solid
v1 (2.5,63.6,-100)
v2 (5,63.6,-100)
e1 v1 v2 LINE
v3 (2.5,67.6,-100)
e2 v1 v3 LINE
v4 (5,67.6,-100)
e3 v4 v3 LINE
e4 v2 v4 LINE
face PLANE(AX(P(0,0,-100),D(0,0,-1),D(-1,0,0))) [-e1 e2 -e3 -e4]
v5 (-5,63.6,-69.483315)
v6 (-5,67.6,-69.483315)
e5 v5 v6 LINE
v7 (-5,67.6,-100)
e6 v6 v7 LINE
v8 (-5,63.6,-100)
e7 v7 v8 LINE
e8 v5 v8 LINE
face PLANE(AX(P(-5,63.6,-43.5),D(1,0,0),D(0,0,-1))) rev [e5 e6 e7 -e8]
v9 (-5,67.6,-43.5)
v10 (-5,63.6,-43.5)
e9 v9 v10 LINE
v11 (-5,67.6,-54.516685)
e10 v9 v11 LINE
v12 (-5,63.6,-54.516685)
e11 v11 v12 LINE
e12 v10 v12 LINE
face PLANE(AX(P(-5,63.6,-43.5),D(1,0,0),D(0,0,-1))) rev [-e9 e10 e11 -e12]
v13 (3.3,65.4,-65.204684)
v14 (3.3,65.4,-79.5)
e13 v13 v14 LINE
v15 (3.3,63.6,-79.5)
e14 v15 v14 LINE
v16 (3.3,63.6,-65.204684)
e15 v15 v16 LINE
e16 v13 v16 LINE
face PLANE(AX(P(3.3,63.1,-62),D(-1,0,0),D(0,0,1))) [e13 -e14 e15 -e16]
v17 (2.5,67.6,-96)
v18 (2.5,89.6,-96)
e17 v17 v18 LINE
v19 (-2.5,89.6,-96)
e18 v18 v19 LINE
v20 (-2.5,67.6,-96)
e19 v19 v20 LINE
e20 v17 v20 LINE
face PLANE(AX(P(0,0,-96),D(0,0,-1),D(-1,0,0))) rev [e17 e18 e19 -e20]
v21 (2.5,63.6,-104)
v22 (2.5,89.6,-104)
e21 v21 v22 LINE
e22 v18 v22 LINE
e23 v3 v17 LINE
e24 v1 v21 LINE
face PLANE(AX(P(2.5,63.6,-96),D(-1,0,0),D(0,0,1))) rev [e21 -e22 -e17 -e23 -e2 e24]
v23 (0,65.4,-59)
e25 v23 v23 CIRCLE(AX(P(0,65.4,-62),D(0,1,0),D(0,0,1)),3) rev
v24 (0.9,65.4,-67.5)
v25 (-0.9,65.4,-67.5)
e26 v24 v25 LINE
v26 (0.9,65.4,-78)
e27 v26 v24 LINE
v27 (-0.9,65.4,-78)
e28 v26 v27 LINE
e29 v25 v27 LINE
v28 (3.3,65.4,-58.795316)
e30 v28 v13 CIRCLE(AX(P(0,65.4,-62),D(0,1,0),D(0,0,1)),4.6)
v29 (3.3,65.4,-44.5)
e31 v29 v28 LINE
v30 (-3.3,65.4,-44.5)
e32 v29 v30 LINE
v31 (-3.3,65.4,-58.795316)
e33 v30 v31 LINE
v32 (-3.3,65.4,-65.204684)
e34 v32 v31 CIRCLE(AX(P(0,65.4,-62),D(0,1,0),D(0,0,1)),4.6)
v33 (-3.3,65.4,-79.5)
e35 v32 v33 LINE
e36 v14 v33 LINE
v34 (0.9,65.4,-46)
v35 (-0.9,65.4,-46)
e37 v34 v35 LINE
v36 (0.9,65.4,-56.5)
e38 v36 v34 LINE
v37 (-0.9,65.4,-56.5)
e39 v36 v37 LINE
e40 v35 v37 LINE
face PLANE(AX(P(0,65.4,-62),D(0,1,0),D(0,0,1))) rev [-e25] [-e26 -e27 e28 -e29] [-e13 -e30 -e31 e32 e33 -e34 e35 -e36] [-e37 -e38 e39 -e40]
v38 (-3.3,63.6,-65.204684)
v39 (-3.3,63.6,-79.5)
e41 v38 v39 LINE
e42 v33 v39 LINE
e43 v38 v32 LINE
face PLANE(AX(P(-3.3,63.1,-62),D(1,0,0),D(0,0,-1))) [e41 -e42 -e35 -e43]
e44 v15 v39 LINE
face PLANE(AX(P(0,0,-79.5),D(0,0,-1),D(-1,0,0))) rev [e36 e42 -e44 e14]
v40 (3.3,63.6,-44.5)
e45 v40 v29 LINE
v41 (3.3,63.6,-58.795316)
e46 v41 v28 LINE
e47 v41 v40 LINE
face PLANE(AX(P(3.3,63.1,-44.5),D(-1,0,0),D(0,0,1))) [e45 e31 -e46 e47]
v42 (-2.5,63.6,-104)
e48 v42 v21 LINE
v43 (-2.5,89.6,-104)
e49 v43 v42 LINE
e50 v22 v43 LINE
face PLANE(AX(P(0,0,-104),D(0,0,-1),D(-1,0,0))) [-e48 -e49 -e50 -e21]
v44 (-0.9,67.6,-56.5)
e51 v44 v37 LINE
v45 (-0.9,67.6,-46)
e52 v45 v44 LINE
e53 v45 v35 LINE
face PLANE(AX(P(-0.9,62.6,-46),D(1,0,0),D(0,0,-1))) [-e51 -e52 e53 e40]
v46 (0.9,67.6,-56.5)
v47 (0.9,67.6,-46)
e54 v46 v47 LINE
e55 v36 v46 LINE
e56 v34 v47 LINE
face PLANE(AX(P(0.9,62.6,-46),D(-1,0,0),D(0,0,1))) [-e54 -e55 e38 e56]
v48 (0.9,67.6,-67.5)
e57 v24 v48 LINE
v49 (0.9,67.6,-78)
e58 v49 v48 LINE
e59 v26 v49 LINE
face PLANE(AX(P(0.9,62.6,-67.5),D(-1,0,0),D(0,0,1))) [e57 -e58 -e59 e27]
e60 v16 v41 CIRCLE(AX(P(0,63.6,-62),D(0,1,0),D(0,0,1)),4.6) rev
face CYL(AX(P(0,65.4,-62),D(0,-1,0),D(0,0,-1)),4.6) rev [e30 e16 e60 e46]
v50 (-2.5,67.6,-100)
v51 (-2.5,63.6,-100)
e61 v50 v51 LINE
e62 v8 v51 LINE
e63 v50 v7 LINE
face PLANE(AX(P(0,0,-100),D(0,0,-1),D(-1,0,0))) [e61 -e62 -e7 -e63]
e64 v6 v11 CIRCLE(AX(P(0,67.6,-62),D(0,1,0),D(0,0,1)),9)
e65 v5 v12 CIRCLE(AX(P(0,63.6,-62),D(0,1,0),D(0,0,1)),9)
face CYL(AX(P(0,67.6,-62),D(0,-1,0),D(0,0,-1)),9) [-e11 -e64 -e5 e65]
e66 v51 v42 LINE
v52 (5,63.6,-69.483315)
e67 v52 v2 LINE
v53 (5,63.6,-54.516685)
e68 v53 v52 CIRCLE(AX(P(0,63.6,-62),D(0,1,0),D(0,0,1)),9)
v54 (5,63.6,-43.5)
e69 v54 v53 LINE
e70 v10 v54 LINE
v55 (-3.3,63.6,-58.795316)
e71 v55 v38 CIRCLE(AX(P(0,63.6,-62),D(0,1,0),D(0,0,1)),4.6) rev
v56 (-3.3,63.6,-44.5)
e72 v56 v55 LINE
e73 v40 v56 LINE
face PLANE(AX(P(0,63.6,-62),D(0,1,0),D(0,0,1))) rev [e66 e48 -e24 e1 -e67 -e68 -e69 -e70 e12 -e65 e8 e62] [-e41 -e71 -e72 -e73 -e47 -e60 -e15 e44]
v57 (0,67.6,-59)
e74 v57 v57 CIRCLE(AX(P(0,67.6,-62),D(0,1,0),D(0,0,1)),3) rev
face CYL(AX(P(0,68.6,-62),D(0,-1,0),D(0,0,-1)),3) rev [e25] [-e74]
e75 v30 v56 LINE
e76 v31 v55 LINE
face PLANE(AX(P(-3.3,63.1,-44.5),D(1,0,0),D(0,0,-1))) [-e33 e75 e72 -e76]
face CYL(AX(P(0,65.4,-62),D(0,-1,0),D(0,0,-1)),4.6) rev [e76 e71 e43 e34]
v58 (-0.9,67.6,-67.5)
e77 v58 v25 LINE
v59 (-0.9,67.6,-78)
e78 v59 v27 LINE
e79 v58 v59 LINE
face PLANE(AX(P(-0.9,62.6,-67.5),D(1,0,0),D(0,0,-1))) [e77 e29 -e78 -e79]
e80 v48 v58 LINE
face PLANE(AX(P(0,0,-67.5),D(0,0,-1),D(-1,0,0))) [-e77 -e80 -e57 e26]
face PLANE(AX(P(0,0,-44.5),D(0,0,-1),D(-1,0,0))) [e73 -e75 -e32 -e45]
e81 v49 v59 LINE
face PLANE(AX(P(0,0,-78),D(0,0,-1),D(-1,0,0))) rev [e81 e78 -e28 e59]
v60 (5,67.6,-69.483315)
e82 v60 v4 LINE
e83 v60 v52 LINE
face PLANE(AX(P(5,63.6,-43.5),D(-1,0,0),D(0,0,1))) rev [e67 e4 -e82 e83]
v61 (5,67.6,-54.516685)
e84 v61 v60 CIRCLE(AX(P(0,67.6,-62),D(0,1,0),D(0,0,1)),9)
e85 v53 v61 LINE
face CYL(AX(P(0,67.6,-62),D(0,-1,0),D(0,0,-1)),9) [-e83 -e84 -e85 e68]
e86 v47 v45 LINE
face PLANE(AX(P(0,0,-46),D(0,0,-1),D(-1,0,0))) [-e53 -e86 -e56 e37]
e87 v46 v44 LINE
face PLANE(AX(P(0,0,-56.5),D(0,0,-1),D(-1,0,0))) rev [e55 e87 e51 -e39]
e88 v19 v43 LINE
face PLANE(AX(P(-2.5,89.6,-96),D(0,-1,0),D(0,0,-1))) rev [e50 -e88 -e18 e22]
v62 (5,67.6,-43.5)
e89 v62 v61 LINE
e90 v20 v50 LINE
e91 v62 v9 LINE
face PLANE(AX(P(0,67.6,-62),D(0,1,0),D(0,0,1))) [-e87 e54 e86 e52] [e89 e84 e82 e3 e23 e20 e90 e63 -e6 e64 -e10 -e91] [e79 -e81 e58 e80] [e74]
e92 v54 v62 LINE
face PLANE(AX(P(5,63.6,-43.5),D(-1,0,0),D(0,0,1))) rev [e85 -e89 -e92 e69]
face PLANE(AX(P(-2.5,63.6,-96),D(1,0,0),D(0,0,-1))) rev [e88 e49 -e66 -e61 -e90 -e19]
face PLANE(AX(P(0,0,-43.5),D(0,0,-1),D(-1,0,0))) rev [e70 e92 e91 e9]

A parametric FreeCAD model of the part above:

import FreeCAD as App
import Part
import Sketcher

V = App.Vector

doc = App.newDocument("Part")
body = doc.addObject("PartDesign::Body", "Body")

sketch1 = doc.addObject("Sketcher::SketchObject", "Sketch")
body.addObject(sketch1)
sketch1.AttachmentSupport = (doc.XZ_Plane, [""])
sketch1.MapMode = "FlatFace"
sketch1.AttachmentOffset = App.Placement(V(0, 0, -63.6), App.Rotation())
sketch1.addGeometry(Part.Circle(V(0, -62, 0), V(0, 0, 1), 9), False)
sketch1.addConstraint([
    Sketcher.Constraint("PointOnObject", 0, 3, -2),
    Sketcher.Constraint("Diameter", 0, 18.0),
    Sketcher.Constraint("DistanceY", 0, 3, -1, 1, 62.0),
])
pad1 = doc.addObject("PartDesign::Pad", "Pad")
body.addObject(pad1)
pad1.Profile = sketch1
pad1.Length = 4
pad1.Reversed = True

sketch2 = doc.addObject("Sketcher::SketchObject", "Sketch001")
body.addObject(sketch2)
sketch2.AttachmentSupport = (doc.XY_Plane, [""])
sketch2.MapMode = "FlatFace"
sketch2.AttachmentOffset = App.Placement(V(0, 0, -100), App.Rotation())
sketch2.addGeometry([
    Part.LineSegment(V(-5, 67.6, 0), V(-5, 63.6, 0)),
    Part.LineSegment(V(-5, 63.6, 0), V(5, 63.6, 0)),
    Part.LineSegment(V(5, 63.6, 0), V(5, 67.6, 0)),
    Part.LineSegment(V(5, 67.6, 0), V(-5, 67.6, 0)),
], False)
sketch2.addConstraint([
    Sketcher.Constraint("Coincident", 0, 2, 1, 1),
    Sketcher.Constraint("Coincident", 1, 2, 2, 1),
    Sketcher.Constraint("Coincident", 2, 2, 3, 1),
    Sketcher.Constraint("Coincident", 3, 2, 0, 1),
    Sketcher.Constraint("Vertical", 0),
    Sketcher.Constraint("Horizontal", 1),
    Sketcher.Constraint("Vertical", 2),
    Sketcher.Constraint("Horizontal", 3),
    Sketcher.Constraint("DistanceX", 1, 1, 1, 2, 10.0),
    Sketcher.Constraint("DistanceY", 0, 2, 0, 1, 4.0),
    Sketcher.Constraint("DistanceX", 0, 2, -1, 1, 5.0),
    Sketcher.Constraint("DistanceY", -1, 1, 0, 2, 63.6),
])
pad2 = doc.addObject("PartDesign::Pad", "Pad001")
body.addObject(pad2)
pad2.Profile = sketch2
pad2.Length = 56.5

sketch3 = doc.addObject("Sketcher::SketchObject", "Sketch002")
body.addObject(sketch3)
sketch3.AttachmentSupport = (doc.XY_Plane, [""])
sketch3.MapMode = "FlatFace"
sketch3.AttachmentOffset = App.Placement(V(0, 0, -104), App.Rotation())
sketch3.addGeometry([
    Part.LineSegment(V(-2, 90, 0), V(-2, 64, 0)),
    Part.LineSegment(V(-2, 64, 0), V(2, 64, 0)),
    Part.LineSegment(V(2, 64, 0), V(2, 90, 0)),
    Part.LineSegment(V(2, 90, 0), V(-2, 90, 0)),
], False)
sketch3.addConstraint([
    Sketcher.Constraint("Coincident", 0, 2, 1, 1),
    Sketcher.Constraint("Coincident", 1, 2, 2, 1),
    Sketcher.Constraint("Coincident", 2, 2, 3, 1),
    Sketcher.Constraint("Coincident", 3, 2, 0, 1),
    Sketcher.Constraint("Vertical", 0),
    Sketcher.Constraint("Horizontal", 1),
    Sketcher.Constraint("Vertical", 2),
    Sketcher.Constraint("Horizontal", 3),
    Sketcher.Constraint("DistanceX", 1, 1, 1, 2, 5.0),
    Sketcher.Constraint("DistanceY", 0, 2, 0, 1, 26.0),
    Sketcher.Constraint("DistanceX", 0, 2, -1, 1, 2.5),
    Sketcher.Constraint("DistanceY", -1, 1, 0, 2, 63.6),
])
pad3 = doc.addObject("PartDesign::Pad", "Pad002")
body.addObject(pad3)
pad3.Profile = sketch3
pad3.Length = 8
body2 = doc.addObject("PartDesign::Body", "Body001")

sketch4 = doc.addObject("Sketcher::SketchObject", "Sketch003")
body2.addObject(sketch4)
sketch4.AttachmentSupport = (doc.getObject("XZ_Plane001"), [""])
sketch4.MapMode = "FlatFace"
sketch4.AttachmentOffset = App.Placement(V(0, 0, -63.1), App.Rotation())
sketch4.addGeometry(Part.Circle(V(0, -62, 0), V(0, 0, 1), 4.6), False)
sketch4.addConstraint([
    Sketcher.Constraint("PointOnObject", 0, 3, -2),
    Sketcher.Constraint("Diameter", 0, 9.2),
    Sketcher.Constraint("DistanceY", 0, 3, -1, 1, 62.0),
])
pad4 = doc.addObject("PartDesign::Pad", "Pad003")
body2.addObject(pad4)
pad4.Profile = sketch4
pad4.Length = 2.3
pad4.Reversed = True
doc.recompute()

boolean = doc.addObject("PartDesign::Boolean", "Boolean")
body.addObject(boolean)
boolean.Type = "Cut"
boolean.addObjects([body2])
body3 = doc.addObject("PartDesign::Body", "Body002")

sketch5 = doc.addObject("Sketcher::SketchObject", "Sketch004")
body3.addObject(sketch5)
sketch5.AttachmentSupport = (doc.getObject("XY_Plane002"), [""])
sketch5.MapMode = "FlatFace"
sketch5.AttachmentOffset = App.Placement(V(0, 0, -62), App.Rotation())
sketch5.addGeometry([
    Part.LineSegment(V(-3.3, 65.4, 0), V(-3.3, 63.1, 0)),
    Part.LineSegment(V(-3.3, 63.1, 0), V(3.3, 63.1, 0)),
    Part.LineSegment(V(3.3, 63.1, 0), V(3.3, 65.4, 0)),
    Part.LineSegment(V(3.3, 65.4, 0), V(-3.3, 65.4, 0)),
], False)
sketch5.addConstraint([
    Sketcher.Constraint("Coincident", 0, 2, 1, 1),
    Sketcher.Constraint("Coincident", 1, 2, 2, 1),
    Sketcher.Constraint("Coincident", 2, 2, 3, 1),
    Sketcher.Constraint("Coincident", 3, 2, 0, 1),
    Sketcher.Constraint("Vertical", 0),
    Sketcher.Constraint("Horizontal", 1),
    Sketcher.Constraint("Vertical", 2),
    Sketcher.Constraint("Horizontal", 3),
    Sketcher.Constraint("DistanceX", 1, 1, 1, 2, 6.6),
    Sketcher.Constraint("DistanceY", 0, 2, 0, 1, 2.3),
    Sketcher.Constraint("DistanceX", 0, 2, -1, 1, 3.3),
    Sketcher.Constraint("DistanceY", -1, 1, 0, 2, 63.1),
])
pad5 = doc.addObject("PartDesign::Pad", "Pad004")
body3.addObject(pad5)
pad5.Profile = sketch5
pad5.Length = 17.5
doc.recompute()

boolean2 = doc.addObject("PartDesign::Boolean", "Boolean001")
body.addObject(boolean2)
boolean2.Type = "Cut"
boolean2.addObjects([body3])
body4 = doc.addObject("PartDesign::Body", "Body003")

sketch6 = doc.addObject("Sketcher::SketchObject", "Sketch005")
body4.addObject(sketch6)
sketch6.AttachmentSupport = (doc.getObject("XY_Plane003"), [""])
sketch6.MapMode = "FlatFace"
sketch6.AttachmentOffset = App.Placement(V(0, 0, -56.5), App.Rotation())
sketch6.addGeometry([
    Part.LineSegment(V(-0.9, 68.6, 0), V(-0.9, 62.6, 0)),
    Part.LineSegment(V(-0.9, 62.6, 0), V(0.9, 62.6, 0)),
    Part.LineSegment(V(0.9, 62.6, 0), V(0.9, 68.6, 0)),
    Part.LineSegment(V(0.9, 68.6, 0), V(-0.9, 68.6, 0)),
], False)
sketch6.addConstraint([
    Sketcher.Constraint("Coincident", 0, 2, 1, 1),
    Sketcher.Constraint("Coincident", 1, 2, 2, 1),
    Sketcher.Constraint("Coincident", 2, 2, 3, 1),
    Sketcher.Constraint("Coincident", 3, 2, 0, 1),
    Sketcher.Constraint("Vertical", 0),
    Sketcher.Constraint("Horizontal", 1),
    Sketcher.Constraint("Vertical", 2),
    Sketcher.Constraint("Horizontal", 3),
    Sketcher.Constraint("DistanceY", 0, 2, 0, 1, 6.0),
    Sketcher.Constraint("DistanceX", 1, 1, 1, 2, 1.8),
    Sketcher.Constraint("DistanceX", 0, 2, -1, 1, 0.9),
    Sketcher.Constraint("DistanceY", -1, 1, 0, 2, 62.6),
])
pad6 = doc.addObject("PartDesign::Pad", "Pad005")
body4.addObject(pad6)
pad6.Profile = sketch6
pad6.Length = 10.5
doc.recompute()

boolean3 = doc.addObject("PartDesign::Boolean", "Boolean002")
body.addObject(boolean3)
boolean3.Type = "Cut"
boolean3.addObjects([body4])
body5 = doc.addObject("PartDesign::Body", "Body004")

sketch7 = doc.addObject("Sketcher::SketchObject", "Sketch006")
body5.addObject(sketch7)
sketch7.AttachmentSupport = (doc.getObject("XY_Plane004"), [""])
sketch7.MapMode = "FlatFace"
sketch7.AttachmentOffset = App.Placement(V(0, 0, -79.5), App.Rotation())
sketch7.addGeometry([
    Part.LineSegment(V(-3.3, 65.4, 0), V(-3.3, 63.1, 0)),
    Part.LineSegment(V(-3.3, 63.1, 0), V(3.3, 63.1, 0)),
    Part.LineSegment(V(3.3, 63.1, 0), V(3.3, 65.4, 0)),
    Part.LineSegment(V(3.3, 65.4, 0), V(-3.3, 65.4, 0)),
], False)
sketch7.addConstraint([
    Sketcher.Constraint("Coincident", 0, 2, 1, 1),
    Sketcher.Constraint("Coincident", 1, 2, 2, 1),
    Sketcher.Constraint("Coincident", 2, 2, 3, 1),
    Sketcher.Constraint("Coincident", 3, 2, 0, 1),
    Sketcher.Constraint("Vertical", 0),
    Sketcher.Constraint("Horizontal", 1),
    Sketcher.Constraint("Vertical", 2),
    Sketcher.Constraint("Horizontal", 3),
    Sketcher.Constraint("DistanceX", 1, 1, 1, 2, 6.6),
    Sketcher.Constraint("DistanceY", 0, 2, 0, 1, 2.3),
    Sketcher.Constraint("DistanceX", 0, 2, -1, 1, 3.3),
    Sketcher.Constraint("DistanceY", -1, 1, 0, 2, 63.1),
])
pad7 = doc.addObject("PartDesign::Pad", "Pad006")
body5.addObject(pad7)
pad7.Profile = sketch7
pad7.Length = 17.5
doc.recompute()

boolean4 = doc.addObject("PartDesign::Boolean", "Boolean003")
body.addObject(boolean4)
boolean4.Type = "Cut"
boolean4.addObjects([body5])
body6 = doc.addObject("PartDesign::Body", "Body005")

sketch8 = doc.addObject("Sketcher::SketchObject", "Sketch007")
body6.addObject(sketch8)
sketch8.AttachmentSupport = (doc.getObject("XY_Plane005"), [""])
sketch8.MapMode = "FlatFace"
sketch8.AttachmentOffset = App.Placement(V(0, 0, -78), App.Rotation())
sketch8.addGeometry([
    Part.LineSegment(V(-0.9, 68.6, 0), V(-0.9, 62.6, 0)),
    Part.LineSegment(V(-0.9, 62.6, 0), V(0.9, 62.6, 0)),
    Part.LineSegment(V(0.9, 62.6, 0), V(0.9, 68.6, 0)),
    Part.LineSegment(V(0.9, 68.6, 0), V(-0.9, 68.6, 0)),
], False)
sketch8.addConstraint([
    Sketcher.Constraint("Coincident", 0, 2, 1, 1),
    Sketcher.Constraint("Coincident", 1, 2, 2, 1),
    Sketcher.Constraint("Coincident", 2, 2, 3, 1),
    Sketcher.Constraint("Coincident", 3, 2, 0, 1),
    Sketcher.Constraint("Vertical", 0),
    Sketcher.Constraint("Horizontal", 1),
    Sketcher.Constraint("Vertical", 2),
    Sketcher.Constraint("Horizontal", 3),
    Sketcher.Constraint("DistanceY", 0, 2, 0, 1, 6.0),
    Sketcher.Constraint("DistanceX", 1, 1, 1, 2, 1.8),
    Sketcher.Constraint("DistanceX", 0, 2, -1, 1, 0.9),
    Sketcher.Constraint("DistanceY", -1, 1, 0, 2, 62.6),
])
pad8 = doc.addObject("PartDesign::Pad", "Pad007")
body6.addObject(pad8)
pad8.Profile = sketch8
pad8.Length = 10.5
doc.recompute()

boolean5 = doc.addObject("PartDesign::Boolean", "Boolean004")
body.addObject(boolean5)
boolean5.Type = "Cut"
boolean5.addObjects([body6])
body7 = doc.addObject("PartDesign::Body", "Body006")

sketch9 = doc.addObject("Sketcher::SketchObject", "Sketch008")
body7.addObject(sketch9)
sketch9.AttachmentSupport = (doc.getObject("XZ_Plane006"), [""])
sketch9.MapMode = "FlatFace"
sketch9.AttachmentOffset = App.Placement(V(0, 0, -62.6), App.Rotation())
sketch9.addGeometry(Part.Circle(V(0, -62, 0), V(0, 0, 1), 3), False)
sketch9.addConstraint([
    Sketcher.Constraint("PointOnObject", 0, 3, -2),
    Sketcher.Constraint("Diameter", 0, 6.0),
    Sketcher.Constraint("DistanceY", 0, 3, -1, 1, 62.0),
])
pad9 = doc.addObject("PartDesign::Pad", "Pad008")
body7.addObject(pad9)
pad9.Profile = sketch9
pad9.Length = 6
pad9.Reversed = True
doc.recompute()

boolean6 = doc.addObject("PartDesign::Boolean", "Boolean005")
body.addObject(boolean6)
boolean6.Type = "Cut"
boolean6.addObjects([body7])

doc.recompute()
